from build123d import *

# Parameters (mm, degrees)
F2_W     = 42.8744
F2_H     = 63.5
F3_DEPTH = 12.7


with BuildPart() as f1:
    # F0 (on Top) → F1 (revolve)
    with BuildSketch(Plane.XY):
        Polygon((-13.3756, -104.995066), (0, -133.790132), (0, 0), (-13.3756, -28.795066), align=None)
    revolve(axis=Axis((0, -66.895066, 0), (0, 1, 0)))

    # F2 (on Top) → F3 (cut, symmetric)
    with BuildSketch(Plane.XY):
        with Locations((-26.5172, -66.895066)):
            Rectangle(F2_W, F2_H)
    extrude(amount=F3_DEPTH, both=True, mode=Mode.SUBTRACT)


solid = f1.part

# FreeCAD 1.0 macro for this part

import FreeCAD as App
import Part
import Sketcher

V = App.Vector
Q = App.Units.Quantity

doc = App.newDocument("Part")
body = doc.addObject("PartDesign::Body", "Body")

# Sketch on XY plane
sketch1 = body.newObject("Sketcher::SketchObject", "Sketch")
sketch1.AttachmentSupport = (doc.getObject("XY_Plane"), [""])
sketch1.MapMode = "FlatFace"
sketch1.addGeometry([
    Part.LineSegment(V(-13, -105, 0), V(0, -134, 0)),
    Part.LineSegment(V(0, -134, 0), V(0, 0, 0)),
    Part.LineSegment(V(0, 0, 0), V(-13, -29, 0)),
    Part.LineSegment(V(-13, -29, 0), V(-13, -105, 0)),
], False)
sketch1.addConstraint([
    Sketcher.Constraint("Coincident", 0, 2, 1, 1),
    Sketcher.Constraint("Coincident", 1, 2, 2, 1),
    Sketcher.Constraint("Coincident", 2, 2, 3, 1),
    Sketcher.Constraint("Coincident", 3, 2, 0, 1),
    Sketcher.Constraint("Vertical", 1),
    Sketcher.Constraint("Vertical", 3),
    Sketcher.Constraint("Coincident", 1, 2, -1, 1),
    Sketcher.Constraint("Equal", 0, 2),
    Sketcher.Constraint("DistanceY", 3, 2, 3, 1, Q("3 in")),
    Sketcher.Constraint("Distance", 0, Q("1.25 in")),
    Sketcher.Constraint("DistanceY", 1, 1, 1, 2, 133.790132),
])
revolution = body.newObject("PartDesign::Revolution", "Revolution")
revolution.Profile = sketch1
revolution.ReferenceAxis = (sketch1, ["V_Axis"])
revolution.Angle = 360

# Sketch on XY plane
sketch2 = body.newObject("Sketcher::SketchObject", "Sketch001")
sketch2.AttachmentSupport = (doc.getObject("XY_Plane"), [""])
sketch2.MapMode = "FlatFace"
sketch2.addGeometry([
    Part.LineSegment(V(-48, -35, 0), V(-48, -99, 0)),
    Part.LineSegment(V(-48, -99, 0), V(-5, -99, 0)),
    Part.LineSegment(V(-5, -99, 0), V(-5, -35, 0)),
    Part.LineSegment(V(-5, -35, 0), V(-48, -35, 0)),
], False)
sketch2.addConstraint([
    Sketcher.Constraint("Coincident", 0, 2, 1, 1),
    Sketcher.Constraint("Coincident", 1, 2, 2, 1),
    Sketcher.Constraint("Coincident", 2, 2, 3, 1),
    Sketcher.Constraint("Coincident", 3, 2, 0, 1),
    Sketcher.Constraint("Vertical", 0),
    Sketcher.Constraint("Horizontal", 1),
    Sketcher.Constraint("Vertical", 2),
    Sketcher.Constraint("Horizontal", 3),
    Sketcher.Constraint("DistanceY", 0, 2, 0, 1, Q("2.5 in")),
    Sketcher.Constraint("DistanceX", 1, 2, -1, 1, Q("0.2 in")),
    Sketcher.Constraint("DistanceX", 1, 1, 1, 2, 42.8744),
    Sketcher.Constraint("DistanceY", 0, 2, -1, 1, 98.645066),
])
pocket1 = body.newObject("PartDesign::Pocket", "Pocket")
pocket1.Profile = sketch2
pocket1.Length = Q("1 in")
pocket1.Midplane = True

doc.recompute()
